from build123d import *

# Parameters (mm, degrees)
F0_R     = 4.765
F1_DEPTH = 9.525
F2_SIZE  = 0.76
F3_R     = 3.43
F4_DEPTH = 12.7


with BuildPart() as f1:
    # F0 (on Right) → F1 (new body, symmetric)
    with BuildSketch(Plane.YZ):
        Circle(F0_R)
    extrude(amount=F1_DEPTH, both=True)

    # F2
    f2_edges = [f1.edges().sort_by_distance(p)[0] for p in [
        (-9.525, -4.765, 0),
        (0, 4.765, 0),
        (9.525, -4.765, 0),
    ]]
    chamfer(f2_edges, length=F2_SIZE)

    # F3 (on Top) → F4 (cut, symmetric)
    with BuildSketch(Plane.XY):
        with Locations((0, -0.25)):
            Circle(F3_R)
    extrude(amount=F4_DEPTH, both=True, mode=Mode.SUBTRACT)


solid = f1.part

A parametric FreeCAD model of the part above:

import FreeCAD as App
import Part
import Sketcher
Q = App.Units.Quantity

doc = App.newDocument("Part")
body = doc.addObject("PartDesign::Body", "Body")

sketch1 = doc.addObject("Sketcher::SketchObject", "Sketch")
body.addObject(sketch1)
sketch1.AttachmentSupport = (doc.YZ_Plane, [""])
sketch1.MapMode = "FlatFace"
sketch1.addGeometry(Part.Circle(App.Vector(0, 0, 0), App.Vector(0, 0, 1), 4.765), False)
sketch1.addConstraint([
    Sketcher.Constraint("Coincident", 0, 3, -1, 1),
    Sketcher.Constraint("Diameter", 0, 9.53),
])
pad1 = doc.addObject("PartDesign::Pad", "Pad")
body.addObject(pad1)
pad1.Profile = sketch1
pad1.Length = Q("0.75 in")
pad1.Midplane = True
doc.recompute()

chamfer = doc.addObject("PartDesign::Chamfer", "Chamfer")
body.addObject(chamfer)
chamfer.Base = (pad1, ["Edge1"])
chamfer.UseAllEdges = True
chamfer.Size = 0.76

sketch2 = doc.addObject("Sketcher::SketchObject", "Sketch001")
body.addObject(sketch2)
sketch2.AttachmentSupport = (doc.XY_Plane, [""])
sketch2.MapMode = "FlatFace"
sketch2.addGeometry(Part.Circle(App.Vector(0, -0.25, 0), App.Vector(0, 0, 1), 3.43), False)
sketch2.addConstraint([
    Sketcher.Constraint("PointOnObject", 0, 3, -2),
    Sketcher.Constraint("Diameter", 0, 6.86),
    Sketcher.Constraint("DistanceY", 0, 3, -1, 1, 0.25),
])
pocket1 = doc.addObject("PartDesign::Pocket", "Pocket")
body.addObject(pocket1)
pocket1.Profile = sketch2
pocket1.Length = Q("1 in")
pocket1.Midplane = True

doc.recompute()
